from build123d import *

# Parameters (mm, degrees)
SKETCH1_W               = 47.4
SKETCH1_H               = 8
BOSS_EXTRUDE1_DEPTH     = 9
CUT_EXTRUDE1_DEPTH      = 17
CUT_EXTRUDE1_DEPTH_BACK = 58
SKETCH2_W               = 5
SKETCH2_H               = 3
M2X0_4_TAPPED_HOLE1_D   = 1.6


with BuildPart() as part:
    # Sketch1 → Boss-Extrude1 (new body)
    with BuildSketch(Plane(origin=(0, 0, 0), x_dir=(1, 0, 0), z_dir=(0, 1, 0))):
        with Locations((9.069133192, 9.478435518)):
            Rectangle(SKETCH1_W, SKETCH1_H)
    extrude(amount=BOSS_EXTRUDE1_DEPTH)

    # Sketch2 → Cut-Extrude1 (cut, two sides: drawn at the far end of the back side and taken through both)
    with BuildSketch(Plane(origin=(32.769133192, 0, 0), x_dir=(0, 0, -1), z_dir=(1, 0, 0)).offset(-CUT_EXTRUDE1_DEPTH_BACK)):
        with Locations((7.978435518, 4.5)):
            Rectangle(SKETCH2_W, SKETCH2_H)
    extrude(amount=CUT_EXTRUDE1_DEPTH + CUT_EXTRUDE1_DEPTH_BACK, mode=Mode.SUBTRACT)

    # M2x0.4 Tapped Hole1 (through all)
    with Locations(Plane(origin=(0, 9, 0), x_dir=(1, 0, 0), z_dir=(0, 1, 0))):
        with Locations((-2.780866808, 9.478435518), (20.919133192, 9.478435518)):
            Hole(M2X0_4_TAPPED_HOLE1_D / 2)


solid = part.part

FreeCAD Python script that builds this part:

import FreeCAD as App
import Part
import Sketcher

V = App.Vector
Q = App.Units.Quantity


def add_polygon(sketch, points):
    """Adds a closed chain of lines whose ends are joined by coincident constraints."""
    first, n = sketch.GeometryCount, len(points)
    for a, b in zip(points, points[1:] + points[:1]):
        sketch.addGeometry(Part.LineSegment(App.Vector(*a, 0), App.Vector(*b, 0)), False)
    for i in range(n):
        sketch.addConstraint(Sketcher.Constraint("Coincident", first + i, 2, first + (i + 1) % n, 1))

doc = App.newDocument("Part")
params = doc.addObject("Spreadsheet::Sheet", "Params")
for row, (alias, value) in enumerate([
    ("sketch1_height", "8 mm"),
    ("sketch1_width", "47.4 mm"),
    ("pad1_length", "9 mm"),
    ("sketch2_width", "3 mm"),
    ("sketch2_height", "5 mm"),
    ("sketch3_diameter", "1.6 mm"),
    ("hole_diameter", "1.6 mm"),
], start=1):
    params.set(f"A{row}", alias)
    params.set(f"B{row}", "=" + value)
    params.setAlias(f"B{row}", alias)

body = doc.addObject("PartDesign::Body", "Body")

# Sketch on XZ plane
sketch1 = body.newObject("Sketcher::SketchObject", "Sketch")
sketch1.AttachmentSupport = (doc.getObject("XZ_Plane"), [""])
sketch1.MapMode = "FlatFace"
add_polygon(sketch1, [(-15, -13), (-15, -5), (33, -5), (33, -13)])  # lines 0-3
sketch1.addConstraint([
    Sketcher.Constraint("Vertical", 0),
    Sketcher.Constraint("Horizontal", 1),
    Sketcher.Constraint("Vertical", 2),
    Sketcher.Constraint("Horizontal", 3),
    Sketcher.Constraint("DistanceY", 0, 1, 0, 2, Q("8 mm")),
    Sketcher.Constraint("DistanceX", 1, 1, 1, 2, Q("47.4 mm")),
    Sketcher.Constraint("DistanceX", 0, 2, -1, 1, Q("14.630867 mm")),
    Sketcher.Constraint("DistanceY", 0, 2, -1, 1, Q("5.478436 mm")),
])
sketch1.setExpression("Constraints[8]", "Params.sketch1_height")
sketch1.setExpression("Constraints[9]", "Params.sketch1_width")
pad1 = body.newObject("PartDesign::Pad", "Pad")
pad1.Profile = sketch1
pad1.setExpression("Length", "Params.pad1_length")
pad1.Reversed = True

# Sketch on YZ plane
sketch2 = body.newObject("Sketcher::SketchObject", "Sketch001")
sketch2.AttachmentSupport = (doc.getObject("YZ_Plane"), [""])
sketch2.MapMode = "FlatFace"
sketch2.AttachmentOffset = App.Placement(V(0, 0, 32.769133), App.Rotation())
add_polygon(sketch2, [(6, -5.5), (3, -5.5), (3, -10.5), (6, -10.5)])  # lines 0-3
sketch2.addConstraint([
    Sketcher.Constraint("Horizontal", 0),
    Sketcher.Constraint("Vertical", 1),
    Sketcher.Constraint("Horizontal", 2),
    Sketcher.Constraint("Vertical", 3),
    Sketcher.Constraint("DistanceX", 0, 2, 0, 1, Q("3 mm")),
    Sketcher.Constraint("DistanceY", 1, 2, 1, 1, Q("5 mm")),
    Sketcher.Constraint("DistanceX", -1, 1, 0, 2, Q("3 mm")),
    Sketcher.Constraint("DistanceY", 0, 2, -1, 1, Q("5.478436 mm")),
])
sketch2.setExpression("Constraints[8]", "Params.sketch2_width")
sketch2.setExpression("Constraints[9]", "Params.sketch2_height")
pocket1 = body.newObject("PartDesign::Pocket", "Pocket")
pocket1.Profile = sketch2
pocket1.Type = "ThroughAll"
pocket1.Midplane = True

# Sketch on XZ plane
sketch3 = body.newObject("Sketcher::SketchObject", "Sketch002")
sketch3.AttachmentSupport = (doc.getObject("XZ_Plane"), [""])
sketch3.MapMode = "FlatFace"
sketch3.AttachmentOffset = App.Placement(V(0, 0, -9), App.Rotation())
sketch3.addGeometry([
    Part.Circle(V(-2.8, -9.5, 0), V(0, 0, 1), 0.8),
    Part.Circle(V(20.9, -9.5, 0), V(0, 0, 1), 0.8),
], False)
sketch3.addConstraint([
    Sketcher.Constraint("Equal", 0, 1),
    Sketcher.Constraint("Horizontal", 0, 3, 1, 3),
    Sketcher.Constraint("Diameter", 0, Q("1.6 mm")),
    Sketcher.Constraint("DistanceX", 0, 3, 1, 3, Q("23.7 mm")),
    Sketcher.Constraint("DistanceX", 0, 3, -1, 1, Q("2.780867 mm")),
    Sketcher.Constraint("DistanceY", 0, 3, -1, 1, Q("9.478436 mm")),
])
sketch3.setExpression("Constraints[2]", "Params.sketch3_diameter")
doc.recompute()
hole = body.newObject("PartDesign::Hole", "Hole")
hole.Profile = sketch3
hole.ThreadType = "None"
hole.setExpression("Diameter", "Params.hole_diameter")
hole.DepthType = "ThroughAll"
hole.Reversed = True

doc.recompute()
